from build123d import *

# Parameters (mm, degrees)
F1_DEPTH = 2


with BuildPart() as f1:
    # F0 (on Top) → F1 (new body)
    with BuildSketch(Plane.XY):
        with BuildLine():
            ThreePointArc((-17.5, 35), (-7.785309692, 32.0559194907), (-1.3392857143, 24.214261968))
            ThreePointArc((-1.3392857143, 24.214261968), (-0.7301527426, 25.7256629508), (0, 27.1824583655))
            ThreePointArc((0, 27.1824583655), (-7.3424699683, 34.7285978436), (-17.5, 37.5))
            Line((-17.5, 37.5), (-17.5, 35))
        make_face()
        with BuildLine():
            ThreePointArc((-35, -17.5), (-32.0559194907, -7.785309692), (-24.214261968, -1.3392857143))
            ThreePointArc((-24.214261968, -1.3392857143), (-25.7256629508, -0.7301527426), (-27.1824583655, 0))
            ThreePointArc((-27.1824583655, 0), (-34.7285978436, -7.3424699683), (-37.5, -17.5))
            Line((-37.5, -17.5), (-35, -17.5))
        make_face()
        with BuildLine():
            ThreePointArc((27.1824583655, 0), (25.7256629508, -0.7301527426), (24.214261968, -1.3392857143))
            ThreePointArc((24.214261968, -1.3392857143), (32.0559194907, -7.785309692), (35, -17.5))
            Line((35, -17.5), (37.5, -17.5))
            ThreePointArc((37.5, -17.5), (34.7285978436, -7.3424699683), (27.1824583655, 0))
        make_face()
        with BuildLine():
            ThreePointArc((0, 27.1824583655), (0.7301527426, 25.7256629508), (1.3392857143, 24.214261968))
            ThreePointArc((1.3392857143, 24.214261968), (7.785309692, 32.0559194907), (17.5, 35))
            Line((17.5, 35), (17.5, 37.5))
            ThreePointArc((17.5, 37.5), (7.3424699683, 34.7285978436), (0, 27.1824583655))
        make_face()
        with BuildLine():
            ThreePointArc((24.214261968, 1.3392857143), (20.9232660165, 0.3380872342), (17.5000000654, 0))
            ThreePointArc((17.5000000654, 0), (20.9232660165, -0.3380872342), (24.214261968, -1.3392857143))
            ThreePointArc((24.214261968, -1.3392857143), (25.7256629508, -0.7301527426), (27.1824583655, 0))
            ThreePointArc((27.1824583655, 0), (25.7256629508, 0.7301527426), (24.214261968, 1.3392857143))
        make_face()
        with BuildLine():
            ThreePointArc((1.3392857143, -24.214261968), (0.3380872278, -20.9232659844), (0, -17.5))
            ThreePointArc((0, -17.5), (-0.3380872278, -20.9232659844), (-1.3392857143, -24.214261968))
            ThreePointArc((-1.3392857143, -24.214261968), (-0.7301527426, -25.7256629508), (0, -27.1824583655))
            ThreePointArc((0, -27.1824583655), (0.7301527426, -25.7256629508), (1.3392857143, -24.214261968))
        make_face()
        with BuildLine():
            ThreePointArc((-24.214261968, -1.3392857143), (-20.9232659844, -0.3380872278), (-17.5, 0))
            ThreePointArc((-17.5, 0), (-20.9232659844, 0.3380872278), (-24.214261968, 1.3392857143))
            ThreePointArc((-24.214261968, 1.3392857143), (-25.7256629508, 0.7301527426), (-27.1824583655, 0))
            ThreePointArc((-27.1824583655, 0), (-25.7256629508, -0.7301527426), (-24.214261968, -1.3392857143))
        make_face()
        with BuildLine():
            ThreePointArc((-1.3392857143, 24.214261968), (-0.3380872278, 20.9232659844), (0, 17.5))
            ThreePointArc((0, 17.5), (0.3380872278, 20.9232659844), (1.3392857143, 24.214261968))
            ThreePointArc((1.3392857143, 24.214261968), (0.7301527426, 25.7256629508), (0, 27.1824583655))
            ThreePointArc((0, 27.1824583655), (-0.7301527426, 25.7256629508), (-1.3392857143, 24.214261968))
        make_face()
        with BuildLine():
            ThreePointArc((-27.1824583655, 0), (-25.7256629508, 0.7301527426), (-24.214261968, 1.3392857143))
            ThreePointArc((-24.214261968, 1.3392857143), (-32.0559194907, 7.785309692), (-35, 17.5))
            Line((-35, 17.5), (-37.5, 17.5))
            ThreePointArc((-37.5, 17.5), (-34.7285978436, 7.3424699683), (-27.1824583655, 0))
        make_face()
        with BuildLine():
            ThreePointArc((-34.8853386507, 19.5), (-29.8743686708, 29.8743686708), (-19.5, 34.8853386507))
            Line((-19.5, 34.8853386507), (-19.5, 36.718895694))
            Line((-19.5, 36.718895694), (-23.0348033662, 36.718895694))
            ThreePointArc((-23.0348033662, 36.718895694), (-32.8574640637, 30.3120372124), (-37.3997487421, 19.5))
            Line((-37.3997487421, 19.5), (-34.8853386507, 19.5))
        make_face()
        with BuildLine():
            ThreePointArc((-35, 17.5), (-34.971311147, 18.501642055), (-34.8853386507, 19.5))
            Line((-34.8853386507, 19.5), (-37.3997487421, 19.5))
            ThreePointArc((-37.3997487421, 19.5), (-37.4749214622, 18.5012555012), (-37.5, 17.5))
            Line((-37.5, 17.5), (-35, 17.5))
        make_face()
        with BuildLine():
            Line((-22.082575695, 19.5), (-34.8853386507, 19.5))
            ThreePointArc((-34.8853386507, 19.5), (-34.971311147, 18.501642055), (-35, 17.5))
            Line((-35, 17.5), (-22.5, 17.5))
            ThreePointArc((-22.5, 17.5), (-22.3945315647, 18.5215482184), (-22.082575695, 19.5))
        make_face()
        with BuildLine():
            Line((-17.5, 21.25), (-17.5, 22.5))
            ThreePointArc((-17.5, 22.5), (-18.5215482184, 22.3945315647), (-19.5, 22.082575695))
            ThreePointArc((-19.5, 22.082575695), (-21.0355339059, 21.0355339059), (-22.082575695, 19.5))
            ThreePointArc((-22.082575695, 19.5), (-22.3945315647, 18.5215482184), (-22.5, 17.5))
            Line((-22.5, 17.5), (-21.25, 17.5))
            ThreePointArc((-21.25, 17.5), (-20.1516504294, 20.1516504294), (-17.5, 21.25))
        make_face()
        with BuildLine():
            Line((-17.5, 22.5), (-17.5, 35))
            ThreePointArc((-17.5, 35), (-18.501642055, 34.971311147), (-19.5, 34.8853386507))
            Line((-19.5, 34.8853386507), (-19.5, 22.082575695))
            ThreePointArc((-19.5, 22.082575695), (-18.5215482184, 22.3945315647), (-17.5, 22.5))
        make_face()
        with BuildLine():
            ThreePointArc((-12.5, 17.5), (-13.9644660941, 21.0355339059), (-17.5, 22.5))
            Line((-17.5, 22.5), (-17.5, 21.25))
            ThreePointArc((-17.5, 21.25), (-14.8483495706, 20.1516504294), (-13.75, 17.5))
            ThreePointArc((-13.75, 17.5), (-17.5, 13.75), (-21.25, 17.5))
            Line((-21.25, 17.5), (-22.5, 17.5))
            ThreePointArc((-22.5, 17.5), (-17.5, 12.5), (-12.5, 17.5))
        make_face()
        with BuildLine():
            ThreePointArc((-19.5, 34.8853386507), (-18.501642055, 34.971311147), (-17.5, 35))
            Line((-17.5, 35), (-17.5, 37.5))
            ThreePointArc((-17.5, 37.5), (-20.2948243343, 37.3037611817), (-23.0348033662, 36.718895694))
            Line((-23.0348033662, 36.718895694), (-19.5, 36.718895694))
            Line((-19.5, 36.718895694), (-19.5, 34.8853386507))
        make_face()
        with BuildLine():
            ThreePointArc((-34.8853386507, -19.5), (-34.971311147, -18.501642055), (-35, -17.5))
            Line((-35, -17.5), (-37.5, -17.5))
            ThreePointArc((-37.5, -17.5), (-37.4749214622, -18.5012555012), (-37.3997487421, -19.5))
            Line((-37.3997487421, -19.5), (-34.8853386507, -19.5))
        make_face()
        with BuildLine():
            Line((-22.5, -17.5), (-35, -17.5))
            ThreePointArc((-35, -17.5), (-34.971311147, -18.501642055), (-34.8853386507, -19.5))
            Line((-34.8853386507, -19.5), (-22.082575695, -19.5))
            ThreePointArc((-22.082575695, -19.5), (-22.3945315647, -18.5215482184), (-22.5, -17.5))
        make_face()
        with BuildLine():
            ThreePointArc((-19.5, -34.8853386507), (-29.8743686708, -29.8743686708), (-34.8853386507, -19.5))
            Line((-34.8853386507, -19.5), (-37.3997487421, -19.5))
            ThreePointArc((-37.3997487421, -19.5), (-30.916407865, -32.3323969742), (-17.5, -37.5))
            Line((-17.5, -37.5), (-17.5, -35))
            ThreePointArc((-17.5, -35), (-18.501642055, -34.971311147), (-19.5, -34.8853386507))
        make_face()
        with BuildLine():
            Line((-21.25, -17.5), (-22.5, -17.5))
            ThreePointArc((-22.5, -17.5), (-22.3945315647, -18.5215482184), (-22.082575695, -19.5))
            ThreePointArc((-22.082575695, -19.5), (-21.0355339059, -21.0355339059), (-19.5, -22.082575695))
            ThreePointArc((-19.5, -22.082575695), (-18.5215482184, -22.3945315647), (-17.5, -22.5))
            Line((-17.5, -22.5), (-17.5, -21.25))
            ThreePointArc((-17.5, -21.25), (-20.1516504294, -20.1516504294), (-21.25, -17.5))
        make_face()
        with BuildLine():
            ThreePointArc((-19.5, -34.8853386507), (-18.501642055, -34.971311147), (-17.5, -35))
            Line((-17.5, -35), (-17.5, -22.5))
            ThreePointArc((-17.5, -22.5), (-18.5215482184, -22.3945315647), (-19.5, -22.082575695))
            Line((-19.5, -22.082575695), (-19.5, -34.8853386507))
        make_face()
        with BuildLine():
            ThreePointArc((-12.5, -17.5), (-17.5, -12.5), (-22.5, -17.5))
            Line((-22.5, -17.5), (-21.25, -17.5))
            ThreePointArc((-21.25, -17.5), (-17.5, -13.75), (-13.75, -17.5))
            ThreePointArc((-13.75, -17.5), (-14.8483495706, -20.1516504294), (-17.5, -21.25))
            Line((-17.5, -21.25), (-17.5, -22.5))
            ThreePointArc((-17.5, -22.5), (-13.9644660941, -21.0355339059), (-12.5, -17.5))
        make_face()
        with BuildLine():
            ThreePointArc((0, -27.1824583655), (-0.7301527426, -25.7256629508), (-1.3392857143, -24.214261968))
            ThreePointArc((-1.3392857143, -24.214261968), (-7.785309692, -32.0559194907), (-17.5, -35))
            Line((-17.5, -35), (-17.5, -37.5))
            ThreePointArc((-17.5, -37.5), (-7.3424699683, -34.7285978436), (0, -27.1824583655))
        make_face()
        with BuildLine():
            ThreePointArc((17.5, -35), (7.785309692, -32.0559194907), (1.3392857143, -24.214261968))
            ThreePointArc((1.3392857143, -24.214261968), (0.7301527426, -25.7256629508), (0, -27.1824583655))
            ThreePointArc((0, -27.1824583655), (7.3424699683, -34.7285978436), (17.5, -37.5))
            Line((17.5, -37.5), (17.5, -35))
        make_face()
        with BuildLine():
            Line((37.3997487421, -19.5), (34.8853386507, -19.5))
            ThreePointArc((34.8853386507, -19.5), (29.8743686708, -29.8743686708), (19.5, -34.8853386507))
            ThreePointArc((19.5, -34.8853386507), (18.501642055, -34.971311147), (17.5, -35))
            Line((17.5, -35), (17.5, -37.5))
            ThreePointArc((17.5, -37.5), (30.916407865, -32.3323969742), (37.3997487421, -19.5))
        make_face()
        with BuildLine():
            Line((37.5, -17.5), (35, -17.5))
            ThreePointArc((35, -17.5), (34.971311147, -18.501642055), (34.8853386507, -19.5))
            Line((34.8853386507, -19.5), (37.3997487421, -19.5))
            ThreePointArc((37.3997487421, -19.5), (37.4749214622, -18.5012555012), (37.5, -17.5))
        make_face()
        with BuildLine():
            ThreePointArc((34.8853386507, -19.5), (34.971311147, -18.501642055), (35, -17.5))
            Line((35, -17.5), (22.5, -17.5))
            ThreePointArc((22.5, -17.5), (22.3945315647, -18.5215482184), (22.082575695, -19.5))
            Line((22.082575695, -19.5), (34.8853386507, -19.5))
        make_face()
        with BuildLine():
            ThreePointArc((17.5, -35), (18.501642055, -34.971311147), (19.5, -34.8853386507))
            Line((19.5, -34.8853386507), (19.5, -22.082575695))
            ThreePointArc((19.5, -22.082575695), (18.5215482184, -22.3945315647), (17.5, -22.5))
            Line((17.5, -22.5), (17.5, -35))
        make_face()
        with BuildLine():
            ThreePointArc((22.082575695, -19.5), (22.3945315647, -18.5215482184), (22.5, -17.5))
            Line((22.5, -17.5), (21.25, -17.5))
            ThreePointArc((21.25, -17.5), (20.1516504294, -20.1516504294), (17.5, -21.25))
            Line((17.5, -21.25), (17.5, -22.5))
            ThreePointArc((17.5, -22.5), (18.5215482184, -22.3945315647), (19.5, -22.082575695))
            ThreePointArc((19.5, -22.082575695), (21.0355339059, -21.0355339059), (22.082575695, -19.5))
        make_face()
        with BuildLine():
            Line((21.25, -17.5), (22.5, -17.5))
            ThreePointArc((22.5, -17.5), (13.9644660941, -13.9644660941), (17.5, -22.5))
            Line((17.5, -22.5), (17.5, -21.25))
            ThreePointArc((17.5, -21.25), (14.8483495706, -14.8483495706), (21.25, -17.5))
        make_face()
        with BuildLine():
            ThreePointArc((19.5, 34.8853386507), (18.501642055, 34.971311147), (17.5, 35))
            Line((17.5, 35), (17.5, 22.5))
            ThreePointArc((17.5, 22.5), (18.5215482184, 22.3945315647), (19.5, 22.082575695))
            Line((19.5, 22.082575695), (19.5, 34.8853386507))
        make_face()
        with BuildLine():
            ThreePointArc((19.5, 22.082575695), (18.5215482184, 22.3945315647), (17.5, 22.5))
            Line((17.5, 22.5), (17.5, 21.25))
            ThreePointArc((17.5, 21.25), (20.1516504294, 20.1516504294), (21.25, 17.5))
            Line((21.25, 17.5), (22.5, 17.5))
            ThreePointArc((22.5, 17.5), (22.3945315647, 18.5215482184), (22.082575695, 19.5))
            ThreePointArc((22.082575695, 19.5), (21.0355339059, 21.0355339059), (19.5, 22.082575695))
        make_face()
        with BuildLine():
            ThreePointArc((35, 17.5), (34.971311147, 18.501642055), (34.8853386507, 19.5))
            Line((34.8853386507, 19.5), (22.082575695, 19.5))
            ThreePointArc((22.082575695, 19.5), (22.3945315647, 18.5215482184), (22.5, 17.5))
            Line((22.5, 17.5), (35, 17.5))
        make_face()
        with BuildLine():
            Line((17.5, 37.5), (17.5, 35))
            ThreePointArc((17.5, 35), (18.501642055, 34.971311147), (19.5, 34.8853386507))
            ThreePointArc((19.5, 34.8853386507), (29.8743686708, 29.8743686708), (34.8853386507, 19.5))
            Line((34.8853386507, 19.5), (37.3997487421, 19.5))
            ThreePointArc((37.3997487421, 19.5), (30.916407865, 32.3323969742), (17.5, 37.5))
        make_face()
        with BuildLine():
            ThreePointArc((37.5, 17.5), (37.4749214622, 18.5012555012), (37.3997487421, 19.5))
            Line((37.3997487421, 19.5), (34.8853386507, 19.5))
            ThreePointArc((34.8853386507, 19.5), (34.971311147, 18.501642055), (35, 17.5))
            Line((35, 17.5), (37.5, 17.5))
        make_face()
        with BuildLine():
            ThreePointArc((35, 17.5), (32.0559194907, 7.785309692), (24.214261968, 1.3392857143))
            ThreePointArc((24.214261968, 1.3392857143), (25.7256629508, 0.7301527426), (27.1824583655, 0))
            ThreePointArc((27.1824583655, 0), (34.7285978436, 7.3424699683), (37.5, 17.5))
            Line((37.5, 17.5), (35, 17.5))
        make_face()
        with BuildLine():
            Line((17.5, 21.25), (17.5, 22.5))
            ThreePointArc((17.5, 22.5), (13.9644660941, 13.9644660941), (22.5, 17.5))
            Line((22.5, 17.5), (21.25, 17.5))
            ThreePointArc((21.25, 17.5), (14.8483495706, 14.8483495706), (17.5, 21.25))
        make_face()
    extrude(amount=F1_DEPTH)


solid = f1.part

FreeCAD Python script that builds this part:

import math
import FreeCAD as App
import Part
import Sketcher

V = App.Vector
Q = App.Units.Quantity

doc = App.newDocument("Part")
body = doc.addObject("PartDesign::Body", "Body")

# Sketch on XY plane
sketch1 = body.newObject("Sketcher::SketchObject", "Sketch")
sketch1.AttachmentSupport = (doc.getObject("XY_Plane"), [""])
sketch1.MapMode = "FlatFace"
sketch1.addGeometry([
    Part.ArcOfCircle(Part.Circle(V(17.5, 17.5, 0), V(0, 0, 1), 20), math.radians(0), math.radians(5.74)),  # 0
    Part.ArcOfCircle(Part.Circle(V(17.5, 17.5, 0), V(0, 0, 1), 20), math.radians(6), math.radians(90)),  # 1
    Part.ArcOfCircle(Part.Circle(V(17.5, 17.5, 0), V(0, 0, 1), 20), math.radians(90), math.radians(151)),  # 2
    Part.ArcOfCircle(Part.Circle(V(-17.5, 17.5, 0), V(0, 0, 1), 20), math.radians(29), math.radians(90)),  # 3
    Part.ArcOfCircle(Part.Circle(V(-17.5, 17.5, 0), V(0, 0, 1), 20), math.radians(90), math.radians(106.07)),  # 4
    Part.ArcOfCircle(Part.Circle(V(-17.5, 17.5, 0), V(0, 0, 1), 20), math.radians(106), math.radians(174)),  # 5
    Part.ArcOfCircle(Part.Circle(V(-17.5, 17.5, 0), V(0, 0, 1), 20), math.radians(174.26), math.radians(180)),  # 6
    Part.ArcOfCircle(Part.Circle(V(-17.5, 17.5, 0), V(0, 0, 1), 20), math.radians(180), math.radians(241)),  # 7
    Part.ArcOfCircle(Part.Circle(V(-17.5, -17.5, 0), V(0, 0, 1), 20), math.radians(119), math.radians(180)),  # 8
    Part.ArcOfCircle(Part.Circle(V(-17.5, -17.5, 0), V(0, 0, 1), 20), math.radians(180), math.radians(185.74)),  # 9
    Part.ArcOfCircle(Part.Circle(V(-17.5, -17.5, 0), V(0, 0, 1), 20), math.radians(-174), math.radians(-90)),  # 10
    Part.ArcOfCircle(Part.Circle(V(-17.5, -17.5, 0), V(0, 0, 1), 20), math.radians(-90), math.radians(-29)),  # 11
    Part.ArcOfCircle(Part.Circle(V(17.5, -17.5, 0), V(0, 0, 1), 20), math.radians(-151), math.radians(-90)),  # 12
    Part.ArcOfCircle(Part.Circle(V(17.5, -17.5, 0), V(0, 0, 1), 20), math.radians(-90), math.radians(-6)),  # 13
    Part.ArcOfCircle(Part.Circle(V(17.5, -17.5, 0), V(0, 0, 1), 20), math.radians(-5.74), math.radians(0)),  # 14
    Part.ArcOfCircle(Part.Circle(V(17.5, -17.5, 0), V(0, 0, 1), 20), math.radians(0), math.radians(61)),  # 15
    Part.ArcOfCircle(Part.Circle(V(17.5, 17.5, 0), V(0, 0, 1), 20), math.radians(-61), math.radians(0)),  # 16
    Part.LineSegment(V(22.5, 17.5, 0), V(35, 17.5, 0)),  # 17
    Part.ArcOfCircle(Part.Circle(V(17.5, 17.5, 0), V(0, 0, 1), 17.5), math.radians(-67), math.radians(0)),  # 18
    Part.ArcOfCircle(Part.Circle(V(17.5, 17.5, 0), V(0, 0, 1), 17.5), math.radians(-90), math.radians(-67)),  # 19
    Part.ArcOfCircle(Part.Circle(V(17.5, -17.5, 0), V(0, 0, 1), 17.5), math.radians(67), math.radians(90)),  # 20
    Part.ArcOfCircle(Part.Circle(V(17.5, -17.5, 0), V(0, 0, 1), 17.5), math.radians(0), math.radians(67)),  # 21
    Part.LineSegment(V(35, -17.5, 0), V(22.5, -17.5, 0)),  # 22
    Part.ArcOfCircle(Part.Circle(V(17.5, -17.5, 0), V(0, 0, 1), 5), math.radians(0), math.radians(270)),  # 23
    Part.LineSegment(V(17.5, -22.5, 0), V(17.5, -35, 0)),  # 24
    Part.ArcOfCircle(Part.Circle(V(17.5, -17.5, 0), V(0, 0, 1), 17.5), math.radians(-157), math.radians(-90)),  # 25
    Part.ArcOfCircle(Part.Circle(V(17.5, -17.5, 0), V(0, 0, 1), 17.5), math.radians(180), math.radians(203)),  # 26
    Part.ArcOfCircle(Part.Circle(V(-17.5, -17.5, 0), V(0, 0, 1), 17.5), math.radians(-23), math.radians(0)),  # 27
    Part.ArcOfCircle(Part.Circle(V(-17.5, -17.5, 0), V(0, 0, 1), 17.5), math.radians(-90), math.radians(-23)),  # 28
    Part.LineSegment(V(-17.5, -35, 0), V(-17.5, -22.5, 0)),  # 29
    Part.ArcOfCircle(Part.Circle(V(-17.5, -17.5, 0), V(0, 0, 1), 5), math.radians(-90), math.radians(0)),  # 30
    Part.ArcOfCircle(Part.Circle(V(-17.5, -17.5, 0), V(0, 0, 1), 5), math.radians(0), math.radians(180)),  # 31
    Part.LineSegment(V(-22.5, -17.5, 0), V(-35, -17.5, 0)),  # 32
    Part.ArcOfCircle(Part.Circle(V(-17.5, -17.5, 0), V(0, 0, 1), 17.5), math.radians(113), math.radians(180)),  # 33
    Part.ArcOfCircle(Part.Circle(V(-17.5, -17.5, 0), V(0, 0, 1), 17.5), math.radians(90), math.radians(113)),  # 34
    Part.ArcOfCircle(Part.Circle(V(-17.5, 17.5, 0), V(0, 0, 1), 17.5), math.radians(-113), math.radians(-90)),  # 35
    Part.ArcOfCircle(Part.Circle(V(-17.5, 17.5, 0), V(0, 0, 1), 17.5), math.radians(180), math.radians(247)),  # 36
    Part.LineSegment(V(-35, 17.5, 0), V(-22.5, 17.5, 0)),  # 37
    Part.ArcOfCircle(Part.Circle(V(-17.5, 17.5, 0), V(0, 0, 1), 5), math.radians(180), math.radians(360)),  # 38
    Part.ArcOfCircle(Part.Circle(V(-17.5, 17.5, 0), V(0, 0, 1), 5), math.radians(0), math.radians(90)),  # 39
    Part.LineSegment(V(-17.5, 22.5, 0), V(-17.5, 35, 0)),  # 40
    Part.ArcOfCircle(Part.Circle(V(-17.5, 17.5, 0), V(0, 0, 1), 17.5), math.radians(23), math.radians(90)),  # 41
    Part.ArcOfCircle(Part.Circle(V(-17.5, 17.5, 0), V(0, 0, 1), 17.5), math.radians(0), math.radians(23)),  # 42
    Part.ArcOfCircle(Part.Circle(V(17.5, 17.5, 0), V(0, 0, 1), 17.5), math.radians(157), math.radians(180)),  # 43
    Part.ArcOfCircle(Part.Circle(V(17.5, 17.5, 0), V(0, 0, 1), 17.5), math.radians(90), math.radians(157)),  # 44
    Part.LineSegment(V(17.5, 35, 0), V(17.5, 22.5, 0)),  # 45
    Part.ArcOfCircle(Part.Circle(V(17.5, 17.5, 0), V(0, 0, 1), 5), math.radians(90), math.radians(360)),  # 46
    Part.ArcOfCircle(Part.Circle(V(17.5, 17.5, 0), V(0, 0, 1), 3.8), math.radians(0), math.radians(90)),  # 47
    Part.ArcOfCircle(Part.Circle(V(17.5, 17.5, 0), V(0, 0, 1), 3.8), math.radians(90), math.radians(360)),  # 48
    Part.ArcOfCircle(Part.Circle(V(-17.5, -17.5, 0), V(0, 0, 1), 17.5), math.radians(-173), math.radians(-97)),  # 49
    Part.LineSegment(V(-34.9, -19.5, 0), V(-22.1, -19.5, 0)),  # 50
    Part.ArcOfCircle(Part.Circle(V(-17.5, -17.5, 0), V(0, 0, 1), 5), math.radians(-156), math.radians(-114)),  # 51
    Part.LineSegment(V(-19.5, -22.1, 0), V(-19.5, -34.9, 0)),  # 52
    Part.ArcOfCircle(Part.Circle(V(-17.5, -17.5, 0), V(0, 0, 1), 3.8), math.radians(180), math.radians(270)),  # 53
    Part.ArcOfCircle(Part.Circle(V(-17.5, -17.5, 0), V(0, 0, 1), 3.8), math.radians(0), math.radians(180)),  # 54
    Part.ArcOfCircle(Part.Circle(V(-17.5, -17.5, 0), V(0, 0, 1), 3.8), math.radians(-90), math.radians(0)),  # 55
    Part.LineSegment(V(22.1, -19.5, 0), V(34.9, -19.5, 0)),  # 56
    Part.ArcOfCircle(Part.Circle(V(17.5, -17.5, 0), V(0, 0, 1), 17.5), math.radians(-83), math.radians(-7)),  # 57
    Part.LineSegment(V(19.5, -34.9, 0), V(19.5, -22.1, 0)),  # 58
    Part.ArcOfCircle(Part.Circle(V(17.5, -17.5, 0), V(0, 0, 1), 5), math.radians(-66), math.radians(-24)),  # 59
    Part.ArcOfCircle(Part.Circle(V(17.5, -17.5, 0), V(0, 0, 1), 3.8), math.radians(-90), math.radians(0)),  # 60
    Part.ArcOfCircle(Part.Circle(V(17.5, -17.5, 0), V(0, 0, 1), 3.8), math.radians(0), math.radians(270)),  # 61
    Part.ArcOfCircle(Part.Circle(V(-17.5, 17.5, 0), V(0, 0, 1), 3.8), math.radians(90), math.radians(180)),  # 62
    Part.ArcOfCircle(Part.Circle(V(-17.5, 17.5, 0), V(0, 0, 1), 3.8), math.radians(0), math.radians(90)),  # 63
    Part.ArcOfCircle(Part.Circle(V(-17.5, 17.5, 0), V(0, 0, 1), 3.8), math.radians(180), math.radians(360)),  # 64
    Part.LineSegment(V(-19.5, 34.9, 0), V(-19.5, 22.1, 0)),  # 65
    Part.ArcOfCircle(Part.Circle(V(-17.5, 17.5, 0), V(0, 0, 1), 5), math.radians(114), math.radians(156)),  # 66
    Part.LineSegment(V(-22.1, 19.5, 0), V(-34.9, 19.5, 0)),  # 67
    Part.ArcOfCircle(Part.Circle(V(-17.5, 17.5, 0), V(0, 0, 1), 17.5), math.radians(97), math.radians(173)),  # 68
    Part.ArcOfCircle(Part.Circle(V(17.5, 17.5, 0), V(0, 0, 1), 17.5), math.radians(7), math.radians(83)),  # 69
    Part.LineSegment(V(34.9, 19.5, 0), V(22.1, 19.5, 0)),  # 70
    Part.ArcOfCircle(Part.Circle(V(17.5, 17.5, 0), V(0, 0, 1), 5), math.radians(24), math.radians(66)),  # 71
    Part.LineSegment(V(19.5, 22.1, 0), V(19.5, 34.9, 0)),  # 72
], False)
sketch1.addConstraint([
    Sketcher.Constraint("Tangent", 0, 2, 1, 1),
    Sketcher.Constraint("Tangent", 1, 2, 2, 1),
    Sketcher.Constraint("Coincident", 2, 2, 3, 1),
    Sketcher.Constraint("Tangent", 3, 2, 4, 1),
    Sketcher.Constraint("Tangent", 4, 2, 5, 1),
    Sketcher.Constraint("Tangent", 5, 2, 6, 1),
    Sketcher.Constraint("Tangent", 6, 2, 7, 1),
    Sketcher.Constraint("Coincident", 7, 2, 8, 1),
    Sketcher.Constraint("Tangent", 8, 2, 9, 1),
    Sketcher.Constraint("Tangent", 9, 2, 10, 1),
    Sketcher.Constraint("Tangent", 10, 2, 11, 1),
    Sketcher.Constraint("Coincident", 11, 2, 12, 1),
    Sketcher.Constraint("Tangent", 12, 2, 13, 1),
    Sketcher.Constraint("Tangent", 13, 2, 14, 1),
    Sketcher.Constraint("Tangent", 14, 2, 15, 1),
    Sketcher.Constraint("Coincident", 15, 2, 16, 1),
    Sketcher.Constraint("Tangent", 16, 2, 0, 1),
    Sketcher.Constraint("Coincident", 17, 2, 18, 2),
    Sketcher.Constraint("Tangent", 18, 1, 19, 2),
    Sketcher.Constraint("Tangent", 19, 1, 20, 2),
    Sketcher.Constraint("Tangent", 20, 1, 21, 2),
    Sketcher.Constraint("Coincident", 21, 1, 22, 1),
    Sketcher.Constraint("Coincident", 22, 2, 23, 1),
    Sketcher.Constraint("Coincident", 23, 2, 24, 1),
    Sketcher.Constraint("Coincident", 24, 2, 25, 2),
    Sketcher.Constraint("Tangent", 25, 1, 26, 2),
    Sketcher.Constraint("Tangent", 26, 1, 27, 2),
    Sketcher.Constraint("Tangent", 27, 1, 28, 2),
    Sketcher.Constraint("Coincident", 28, 1, 29, 1),
    Sketcher.Constraint("Coincident", 29, 2, 30, 1),
    Sketcher.Constraint("Tangent", 30, 2, 31, 1),
    Sketcher.Constraint("Coincident", 31, 2, 32, 1),
    Sketcher.Constraint("Coincident", 32, 2, 33, 2),
    Sketcher.Constraint("Tangent", 33, 1, 34, 2),
    Sketcher.Constraint("Tangent", 34, 1, 35, 2),
    Sketcher.Constraint("Tangent", 35, 1, 36, 2),
    Sketcher.Constraint("Coincident", 36, 1, 37, 1),
    Sketcher.Constraint("Coincident", 37, 2, 38, 1),
    Sketcher.Constraint("Tangent", 38, 2, 39, 1),
    Sketcher.Constraint("Coincident", 39, 2, 40, 1),
    Sketcher.Constraint("Coincident", 40, 2, 41, 2),
    Sketcher.Constraint("Tangent", 41, 1, 42, 2),
    Sketcher.Constraint("Tangent", 42, 1, 43, 2),
    Sketcher.Constraint("Tangent", 43, 1, 44, 2),
    Sketcher.Constraint("Coincident", 44, 1, 45, 1),
    Sketcher.Constraint("Coincident", 45, 2, 46, 1),
    Sketcher.Constraint("Coincident", 46, 2, 17, 1),
    Sketcher.Constraint("Tangent", 47, 1, 48, 2),
    Sketcher.Constraint("Coincident", 48, 1, 47, 2),
    Sketcher.Constraint("Coincident", 49, 1, 50, 1),
    Sketcher.Constraint("Coincident", 50, 2, 51, 1),
    Sketcher.Constraint("Coincident", 51, 2, 52, 1),
    Sketcher.Constraint("Coincident", 52, 2, 49, 2),
    Sketcher.Constraint("Tangent", 53, 1, 54, 2),
    Sketcher.Constraint("Tangent", 54, 1, 55, 2),
    Sketcher.Constraint("Tangent", 55, 1, 53, 2),
    Sketcher.Constraint("Coincident", 56, 2, 57, 2),
    Sketcher.Constraint("Coincident", 57, 1, 58, 1),
    Sketcher.Constraint("Coincident", 58, 2, 59, 1),
    Sketcher.Constraint("Coincident", 59, 2, 56, 1),
    Sketcher.Constraint("Tangent", 60, 1, 61, 2),
    Sketcher.Constraint("Coincident", 61, 1, 60, 2),
    Sketcher.Constraint("Tangent", 62, 1, 63, 2),
    Sketcher.Constraint("Tangent", 63, 1, 64, 2),
    Sketcher.Constraint("Tangent", 64, 1, 62, 2),
    Sketcher.Constraint("Coincident", 65, 2, 66, 1),
    Sketcher.Constraint("Coincident", 66, 2, 67, 1),
    Sketcher.Constraint("Coincident", 67, 2, 68, 2),
    Sketcher.Constraint("Coincident", 68, 1, 65, 1),
    Sketcher.Constraint("Coincident", 69, 1, 70, 1),
    Sketcher.Constraint("Coincident", 70, 2, 71, 1),
    Sketcher.Constraint("Coincident", 71, 2, 72, 1),
    Sketcher.Constraint("Coincident", 72, 2, 69, 2),
    Sketcher.Constraint("Horizontal", 17),
    Sketcher.Constraint("Horizontal", 22),
    Sketcher.Constraint("Vertical", 24),
    Sketcher.Constraint("Vertical", 29),
    Sketcher.Constraint("Horizontal", 32),
    Sketcher.Constraint("Horizontal", 37),
    Sketcher.Constraint("Vertical", 40),
    Sketcher.Constraint("Vertical", 45),
    Sketcher.Constraint("Horizontal", 50),
    Sketcher.Constraint("Vertical", 52),
    Sketcher.Constraint("Horizontal", 56),
    Sketcher.Constraint("Vertical", 58),
    Sketcher.Constraint("Vertical", 65),
    Sketcher.Constraint("Horizontal", 67),
    Sketcher.Constraint("Horizontal", 70),
    Sketcher.Constraint("Vertical", 72),
    Sketcher.Constraint("Coincident", 2, 3, 0, 3),
    Sketcher.Constraint("Coincident", 5, 3, 3, 3),
    Sketcher.Constraint("Coincident", 7, 3, 3, 3),
    Sketcher.Constraint("Coincident", 10, 3, 8, 3),
    Sketcher.Constraint("Coincident", 14, 3, 12, 3),
    Sketcher.Constraint("Coincident", 18, 3, 0, 3),
    Sketcher.Constraint("Coincident", 20, 3, 12, 3),
    Sketcher.Constraint("Coincident", 23, 3, 12, 3),
    Sketcher.Constraint("Coincident", 25, 3, 12, 3),
    Sketcher.Constraint("Coincident", 27, 3, 8, 3),
    Sketcher.Constraint("Coincident", 30, 3, 8, 3),
    Sketcher.Constraint("Coincident", 33, 3, 8, 3),
    Sketcher.Constraint("Coincident", 35, 3, 3, 3),
    Sketcher.Constraint("Coincident", 38, 3, 3, 3),
    Sketcher.Constraint("Coincident", 41, 3, 3, 3),
    Sketcher.Constraint("Coincident", 43, 3, 0, 3),
    Sketcher.Constraint("Coincident", 46, 3, 0, 3),
    Sketcher.Constraint("Coincident", 47, 3, 0, 3),
    Sketcher.Constraint("Coincident", 49, 3, 8, 3),
    Sketcher.Constraint("Coincident", 51, 3, 8, 3),
    Sketcher.Constraint("Coincident", 53, 3, 8, 3),
    Sketcher.Constraint("Coincident", 57, 3, 12, 3),
    Sketcher.Constraint("Coincident", 59, 3, 12, 3),
    Sketcher.Constraint("Coincident", 60, 3, 12, 3),
    Sketcher.Constraint("Coincident", 62, 3, 3, 3),
    Sketcher.Constraint("Coincident", 66, 3, 3, 3),
    Sketcher.Constraint("Coincident", 68, 3, 3, 3),
    Sketcher.Constraint("Coincident", 69, 3, 0, 3),
    Sketcher.Constraint("Coincident", 71, 3, 0, 3),
    Sketcher.Constraint("Equal", 2, 3),
    Sketcher.Constraint("Equal", 7, 8),
    Sketcher.Constraint("Equal", 10, 11),
    Sketcher.Constraint("Equal", 11, 12),
    Sketcher.Constraint("Equal", 14, 15),
    Sketcher.Constraint("Equal", 15, 16),
    Sketcher.Constraint("Equal", 18, 19),
    Sketcher.Constraint("Equal", 19, 20),
    Sketcher.Constraint("Equal", 20, 21),
    Sketcher.Constraint("Equal", 21, 25),
    Sketcher.Constraint("Equal", 25, 26),
    Sketcher.Constraint("Equal", 26, 27),
    Sketcher.Constraint("Equal", 27, 28),
    Sketcher.Constraint("Equal", 23, 30),
    Sketcher.Constraint("Equal", 30, 31),
    Sketcher.Constraint("Equal", 28, 33),
    Sketcher.Constraint("Equal", 33, 34),
    Sketcher.Constraint("Equal", 34, 35),
    Sketcher.Constraint("Equal", 35, 36),
    Sketcher.Constraint("Equal", 31, 38),
    Sketcher.Constraint("Equal", 38, 39),
    Sketcher.Constraint("Equal", 36, 41),
    Sketcher.Constraint("Equal", 41, 42),
    Sketcher.Constraint("Equal", 42, 43),
    Sketcher.Constraint("Equal", 43, 44),
    Sketcher.Constraint("Equal", 39, 46),
    Sketcher.Constraint("Equal", 44, 49),
    Sketcher.Constraint("Equal", 46, 51),
    Sketcher.Constraint("Equal", 48, 53),
    Sketcher.Constraint("Equal", 49, 57),
    Sketcher.Constraint("Equal", 51, 59),
    Sketcher.Constraint("Equal", 55, 60),
    Sketcher.Constraint("Equal", 61, 62),
    Sketcher.Constraint("Equal", 59, 66),
    Sketcher.Constraint("Equal", 57, 68),
    Sketcher.Constraint("Equal", 68, 69),
    Sketcher.Constraint("Equal", 66, 71),
    Sketcher.Constraint("Symmetric", 0, 3, 8, 3, -1, 1),
    Sketcher.Constraint("Symmetric", 0, 3, 3, 3, -2),
    Sketcher.Constraint("Horizontal", 0, 2, 5, 2),
    Sketcher.Constraint("Horizontal", 71, 3, 6, 2),
    Sketcher.Constraint("Horizontal", 61, 3, 8, 2),
    Sketcher.Constraint("Horizontal", 9, 2, 13, 2),
    Sketcher.Constraint("Horizontal", 8, 2, 14, 2),
    Sketcher.Constraint("Horizontal", 6, 2, 16, 2),
    Sketcher.Constraint("Horizontal", 16, 2, 17, 2),
    Sketcher.Constraint("Horizontal", 14, 2, 21, 1),
    Sketcher.Constraint("Horizontal", 25, 1, 27, 1),
    Sketcher.Constraint("Horizontal", 26, 1, 30, 2),
    Sketcher.Constraint("Horizontal", 30, 2, 31, 2),
    Sketcher.Constraint("Horizontal", 20, 1, 33, 1),
    Sketcher.Constraint("Horizontal", 18, 1, 35, 1),
    Sketcher.Constraint("Horizontal", 17, 2, 36, 1),
    Sketcher.Constraint("Horizontal", 37, 2, 38, 2),
    Sketcher.Constraint("Horizontal", 41, 1, 43, 1),
    Sketcher.Constraint("Horizontal", 46, 2, 47, 1),
    Sketcher.Constraint("Horizontal", 13, 2, 49, 1),
    Sketcher.Constraint("Horizontal", 32, 2, 53, 1),
    Sketcher.Constraint("Horizontal", 53, 1, 54, 1),
    Sketcher.Constraint("Horizontal", 50, 2, 56, 2),
    Sketcher.Constraint("Horizontal", 52, 2, 57, 1),
    Sketcher.Constraint("Horizontal", 54, 1, 61, 1),
    Sketcher.Constraint("Horizontal", 47, 1, 63, 1),
    Sketcher.Constraint("Horizontal", 63, 1, 64, 1),
    Sketcher.Constraint("Horizontal", 5, 2, 66, 2),
    Sketcher.Constraint("Horizontal", 67, 2, 69, 1),
    Sketcher.Constraint("Horizontal", 65, 2, 71, 2),
    Sketcher.Constraint("Vertical", 71, 3, 1, 2),
    Sketcher.Constraint("Vertical", 68, 3, 3, 2),
    Sketcher.Constraint("Vertical", 5, 2, 9, 2),
    Sketcher.Constraint("Vertical", 3, 2, 10, 2),
    Sketcher.Constraint("Vertical", 1, 2, 12, 2),
    Sketcher.Constraint("Vertical", 18, 1, 20, 1),
    Sketcher.Constraint("Vertical", 19, 1, 23, 2),
    Sketcher.Constraint("Vertical", 10, 2, 28, 1),
    Sketcher.Constraint("Vertical", 34, 1, 39, 2),
    Sketcher.Constraint("Vertical", 27, 1, 41, 1),
    Sketcher.Constraint("Vertical", 24, 2, 44, 1),
    Sketcher.Constraint("Vertical", 45, 2, 48, 1),
    Sketcher.Constraint("Vertical", 40, 2, 55, 1),
    Sketcher.Constraint("Vertical", 48, 1, 60, 1),
    Sketcher.Constraint("Vertical", 55, 1, 62, 1),
    Sketcher.Constraint("Vertical", 52, 2, 65, 2),
    Sketcher.Constraint("Equal", 70, 52),
    Sketcher.Constraint("Radius", 0, Q("20 mm")),
    Sketcher.Constraint("Radius", 23, Q("5 mm")),
    Sketcher.Constraint("Radius", 18, Q("17.5 mm")),
    Sketcher.Constraint("Radius", 47, Q("3.75 mm")),
    Sketcher.Constraint("DistanceY", -1, 1, 0, 2, Q("19.5 mm")),
    Sketcher.Constraint("DistanceX", -1, 1, 18, 1, Q("24.214262 mm")),
    Sketcher.Constraint("DistanceY", 25, 1, -1, 1, Q("24.214262 mm")),
    Sketcher.Constraint("DistanceX", 4, 2, -1, 1, Q("23.034803 mm")),
])
pad1 = body.newObject("PartDesign::Pad", "Pad")
pad1.Profile = sketch1
pad1.Length = 2

doc.recompute()
